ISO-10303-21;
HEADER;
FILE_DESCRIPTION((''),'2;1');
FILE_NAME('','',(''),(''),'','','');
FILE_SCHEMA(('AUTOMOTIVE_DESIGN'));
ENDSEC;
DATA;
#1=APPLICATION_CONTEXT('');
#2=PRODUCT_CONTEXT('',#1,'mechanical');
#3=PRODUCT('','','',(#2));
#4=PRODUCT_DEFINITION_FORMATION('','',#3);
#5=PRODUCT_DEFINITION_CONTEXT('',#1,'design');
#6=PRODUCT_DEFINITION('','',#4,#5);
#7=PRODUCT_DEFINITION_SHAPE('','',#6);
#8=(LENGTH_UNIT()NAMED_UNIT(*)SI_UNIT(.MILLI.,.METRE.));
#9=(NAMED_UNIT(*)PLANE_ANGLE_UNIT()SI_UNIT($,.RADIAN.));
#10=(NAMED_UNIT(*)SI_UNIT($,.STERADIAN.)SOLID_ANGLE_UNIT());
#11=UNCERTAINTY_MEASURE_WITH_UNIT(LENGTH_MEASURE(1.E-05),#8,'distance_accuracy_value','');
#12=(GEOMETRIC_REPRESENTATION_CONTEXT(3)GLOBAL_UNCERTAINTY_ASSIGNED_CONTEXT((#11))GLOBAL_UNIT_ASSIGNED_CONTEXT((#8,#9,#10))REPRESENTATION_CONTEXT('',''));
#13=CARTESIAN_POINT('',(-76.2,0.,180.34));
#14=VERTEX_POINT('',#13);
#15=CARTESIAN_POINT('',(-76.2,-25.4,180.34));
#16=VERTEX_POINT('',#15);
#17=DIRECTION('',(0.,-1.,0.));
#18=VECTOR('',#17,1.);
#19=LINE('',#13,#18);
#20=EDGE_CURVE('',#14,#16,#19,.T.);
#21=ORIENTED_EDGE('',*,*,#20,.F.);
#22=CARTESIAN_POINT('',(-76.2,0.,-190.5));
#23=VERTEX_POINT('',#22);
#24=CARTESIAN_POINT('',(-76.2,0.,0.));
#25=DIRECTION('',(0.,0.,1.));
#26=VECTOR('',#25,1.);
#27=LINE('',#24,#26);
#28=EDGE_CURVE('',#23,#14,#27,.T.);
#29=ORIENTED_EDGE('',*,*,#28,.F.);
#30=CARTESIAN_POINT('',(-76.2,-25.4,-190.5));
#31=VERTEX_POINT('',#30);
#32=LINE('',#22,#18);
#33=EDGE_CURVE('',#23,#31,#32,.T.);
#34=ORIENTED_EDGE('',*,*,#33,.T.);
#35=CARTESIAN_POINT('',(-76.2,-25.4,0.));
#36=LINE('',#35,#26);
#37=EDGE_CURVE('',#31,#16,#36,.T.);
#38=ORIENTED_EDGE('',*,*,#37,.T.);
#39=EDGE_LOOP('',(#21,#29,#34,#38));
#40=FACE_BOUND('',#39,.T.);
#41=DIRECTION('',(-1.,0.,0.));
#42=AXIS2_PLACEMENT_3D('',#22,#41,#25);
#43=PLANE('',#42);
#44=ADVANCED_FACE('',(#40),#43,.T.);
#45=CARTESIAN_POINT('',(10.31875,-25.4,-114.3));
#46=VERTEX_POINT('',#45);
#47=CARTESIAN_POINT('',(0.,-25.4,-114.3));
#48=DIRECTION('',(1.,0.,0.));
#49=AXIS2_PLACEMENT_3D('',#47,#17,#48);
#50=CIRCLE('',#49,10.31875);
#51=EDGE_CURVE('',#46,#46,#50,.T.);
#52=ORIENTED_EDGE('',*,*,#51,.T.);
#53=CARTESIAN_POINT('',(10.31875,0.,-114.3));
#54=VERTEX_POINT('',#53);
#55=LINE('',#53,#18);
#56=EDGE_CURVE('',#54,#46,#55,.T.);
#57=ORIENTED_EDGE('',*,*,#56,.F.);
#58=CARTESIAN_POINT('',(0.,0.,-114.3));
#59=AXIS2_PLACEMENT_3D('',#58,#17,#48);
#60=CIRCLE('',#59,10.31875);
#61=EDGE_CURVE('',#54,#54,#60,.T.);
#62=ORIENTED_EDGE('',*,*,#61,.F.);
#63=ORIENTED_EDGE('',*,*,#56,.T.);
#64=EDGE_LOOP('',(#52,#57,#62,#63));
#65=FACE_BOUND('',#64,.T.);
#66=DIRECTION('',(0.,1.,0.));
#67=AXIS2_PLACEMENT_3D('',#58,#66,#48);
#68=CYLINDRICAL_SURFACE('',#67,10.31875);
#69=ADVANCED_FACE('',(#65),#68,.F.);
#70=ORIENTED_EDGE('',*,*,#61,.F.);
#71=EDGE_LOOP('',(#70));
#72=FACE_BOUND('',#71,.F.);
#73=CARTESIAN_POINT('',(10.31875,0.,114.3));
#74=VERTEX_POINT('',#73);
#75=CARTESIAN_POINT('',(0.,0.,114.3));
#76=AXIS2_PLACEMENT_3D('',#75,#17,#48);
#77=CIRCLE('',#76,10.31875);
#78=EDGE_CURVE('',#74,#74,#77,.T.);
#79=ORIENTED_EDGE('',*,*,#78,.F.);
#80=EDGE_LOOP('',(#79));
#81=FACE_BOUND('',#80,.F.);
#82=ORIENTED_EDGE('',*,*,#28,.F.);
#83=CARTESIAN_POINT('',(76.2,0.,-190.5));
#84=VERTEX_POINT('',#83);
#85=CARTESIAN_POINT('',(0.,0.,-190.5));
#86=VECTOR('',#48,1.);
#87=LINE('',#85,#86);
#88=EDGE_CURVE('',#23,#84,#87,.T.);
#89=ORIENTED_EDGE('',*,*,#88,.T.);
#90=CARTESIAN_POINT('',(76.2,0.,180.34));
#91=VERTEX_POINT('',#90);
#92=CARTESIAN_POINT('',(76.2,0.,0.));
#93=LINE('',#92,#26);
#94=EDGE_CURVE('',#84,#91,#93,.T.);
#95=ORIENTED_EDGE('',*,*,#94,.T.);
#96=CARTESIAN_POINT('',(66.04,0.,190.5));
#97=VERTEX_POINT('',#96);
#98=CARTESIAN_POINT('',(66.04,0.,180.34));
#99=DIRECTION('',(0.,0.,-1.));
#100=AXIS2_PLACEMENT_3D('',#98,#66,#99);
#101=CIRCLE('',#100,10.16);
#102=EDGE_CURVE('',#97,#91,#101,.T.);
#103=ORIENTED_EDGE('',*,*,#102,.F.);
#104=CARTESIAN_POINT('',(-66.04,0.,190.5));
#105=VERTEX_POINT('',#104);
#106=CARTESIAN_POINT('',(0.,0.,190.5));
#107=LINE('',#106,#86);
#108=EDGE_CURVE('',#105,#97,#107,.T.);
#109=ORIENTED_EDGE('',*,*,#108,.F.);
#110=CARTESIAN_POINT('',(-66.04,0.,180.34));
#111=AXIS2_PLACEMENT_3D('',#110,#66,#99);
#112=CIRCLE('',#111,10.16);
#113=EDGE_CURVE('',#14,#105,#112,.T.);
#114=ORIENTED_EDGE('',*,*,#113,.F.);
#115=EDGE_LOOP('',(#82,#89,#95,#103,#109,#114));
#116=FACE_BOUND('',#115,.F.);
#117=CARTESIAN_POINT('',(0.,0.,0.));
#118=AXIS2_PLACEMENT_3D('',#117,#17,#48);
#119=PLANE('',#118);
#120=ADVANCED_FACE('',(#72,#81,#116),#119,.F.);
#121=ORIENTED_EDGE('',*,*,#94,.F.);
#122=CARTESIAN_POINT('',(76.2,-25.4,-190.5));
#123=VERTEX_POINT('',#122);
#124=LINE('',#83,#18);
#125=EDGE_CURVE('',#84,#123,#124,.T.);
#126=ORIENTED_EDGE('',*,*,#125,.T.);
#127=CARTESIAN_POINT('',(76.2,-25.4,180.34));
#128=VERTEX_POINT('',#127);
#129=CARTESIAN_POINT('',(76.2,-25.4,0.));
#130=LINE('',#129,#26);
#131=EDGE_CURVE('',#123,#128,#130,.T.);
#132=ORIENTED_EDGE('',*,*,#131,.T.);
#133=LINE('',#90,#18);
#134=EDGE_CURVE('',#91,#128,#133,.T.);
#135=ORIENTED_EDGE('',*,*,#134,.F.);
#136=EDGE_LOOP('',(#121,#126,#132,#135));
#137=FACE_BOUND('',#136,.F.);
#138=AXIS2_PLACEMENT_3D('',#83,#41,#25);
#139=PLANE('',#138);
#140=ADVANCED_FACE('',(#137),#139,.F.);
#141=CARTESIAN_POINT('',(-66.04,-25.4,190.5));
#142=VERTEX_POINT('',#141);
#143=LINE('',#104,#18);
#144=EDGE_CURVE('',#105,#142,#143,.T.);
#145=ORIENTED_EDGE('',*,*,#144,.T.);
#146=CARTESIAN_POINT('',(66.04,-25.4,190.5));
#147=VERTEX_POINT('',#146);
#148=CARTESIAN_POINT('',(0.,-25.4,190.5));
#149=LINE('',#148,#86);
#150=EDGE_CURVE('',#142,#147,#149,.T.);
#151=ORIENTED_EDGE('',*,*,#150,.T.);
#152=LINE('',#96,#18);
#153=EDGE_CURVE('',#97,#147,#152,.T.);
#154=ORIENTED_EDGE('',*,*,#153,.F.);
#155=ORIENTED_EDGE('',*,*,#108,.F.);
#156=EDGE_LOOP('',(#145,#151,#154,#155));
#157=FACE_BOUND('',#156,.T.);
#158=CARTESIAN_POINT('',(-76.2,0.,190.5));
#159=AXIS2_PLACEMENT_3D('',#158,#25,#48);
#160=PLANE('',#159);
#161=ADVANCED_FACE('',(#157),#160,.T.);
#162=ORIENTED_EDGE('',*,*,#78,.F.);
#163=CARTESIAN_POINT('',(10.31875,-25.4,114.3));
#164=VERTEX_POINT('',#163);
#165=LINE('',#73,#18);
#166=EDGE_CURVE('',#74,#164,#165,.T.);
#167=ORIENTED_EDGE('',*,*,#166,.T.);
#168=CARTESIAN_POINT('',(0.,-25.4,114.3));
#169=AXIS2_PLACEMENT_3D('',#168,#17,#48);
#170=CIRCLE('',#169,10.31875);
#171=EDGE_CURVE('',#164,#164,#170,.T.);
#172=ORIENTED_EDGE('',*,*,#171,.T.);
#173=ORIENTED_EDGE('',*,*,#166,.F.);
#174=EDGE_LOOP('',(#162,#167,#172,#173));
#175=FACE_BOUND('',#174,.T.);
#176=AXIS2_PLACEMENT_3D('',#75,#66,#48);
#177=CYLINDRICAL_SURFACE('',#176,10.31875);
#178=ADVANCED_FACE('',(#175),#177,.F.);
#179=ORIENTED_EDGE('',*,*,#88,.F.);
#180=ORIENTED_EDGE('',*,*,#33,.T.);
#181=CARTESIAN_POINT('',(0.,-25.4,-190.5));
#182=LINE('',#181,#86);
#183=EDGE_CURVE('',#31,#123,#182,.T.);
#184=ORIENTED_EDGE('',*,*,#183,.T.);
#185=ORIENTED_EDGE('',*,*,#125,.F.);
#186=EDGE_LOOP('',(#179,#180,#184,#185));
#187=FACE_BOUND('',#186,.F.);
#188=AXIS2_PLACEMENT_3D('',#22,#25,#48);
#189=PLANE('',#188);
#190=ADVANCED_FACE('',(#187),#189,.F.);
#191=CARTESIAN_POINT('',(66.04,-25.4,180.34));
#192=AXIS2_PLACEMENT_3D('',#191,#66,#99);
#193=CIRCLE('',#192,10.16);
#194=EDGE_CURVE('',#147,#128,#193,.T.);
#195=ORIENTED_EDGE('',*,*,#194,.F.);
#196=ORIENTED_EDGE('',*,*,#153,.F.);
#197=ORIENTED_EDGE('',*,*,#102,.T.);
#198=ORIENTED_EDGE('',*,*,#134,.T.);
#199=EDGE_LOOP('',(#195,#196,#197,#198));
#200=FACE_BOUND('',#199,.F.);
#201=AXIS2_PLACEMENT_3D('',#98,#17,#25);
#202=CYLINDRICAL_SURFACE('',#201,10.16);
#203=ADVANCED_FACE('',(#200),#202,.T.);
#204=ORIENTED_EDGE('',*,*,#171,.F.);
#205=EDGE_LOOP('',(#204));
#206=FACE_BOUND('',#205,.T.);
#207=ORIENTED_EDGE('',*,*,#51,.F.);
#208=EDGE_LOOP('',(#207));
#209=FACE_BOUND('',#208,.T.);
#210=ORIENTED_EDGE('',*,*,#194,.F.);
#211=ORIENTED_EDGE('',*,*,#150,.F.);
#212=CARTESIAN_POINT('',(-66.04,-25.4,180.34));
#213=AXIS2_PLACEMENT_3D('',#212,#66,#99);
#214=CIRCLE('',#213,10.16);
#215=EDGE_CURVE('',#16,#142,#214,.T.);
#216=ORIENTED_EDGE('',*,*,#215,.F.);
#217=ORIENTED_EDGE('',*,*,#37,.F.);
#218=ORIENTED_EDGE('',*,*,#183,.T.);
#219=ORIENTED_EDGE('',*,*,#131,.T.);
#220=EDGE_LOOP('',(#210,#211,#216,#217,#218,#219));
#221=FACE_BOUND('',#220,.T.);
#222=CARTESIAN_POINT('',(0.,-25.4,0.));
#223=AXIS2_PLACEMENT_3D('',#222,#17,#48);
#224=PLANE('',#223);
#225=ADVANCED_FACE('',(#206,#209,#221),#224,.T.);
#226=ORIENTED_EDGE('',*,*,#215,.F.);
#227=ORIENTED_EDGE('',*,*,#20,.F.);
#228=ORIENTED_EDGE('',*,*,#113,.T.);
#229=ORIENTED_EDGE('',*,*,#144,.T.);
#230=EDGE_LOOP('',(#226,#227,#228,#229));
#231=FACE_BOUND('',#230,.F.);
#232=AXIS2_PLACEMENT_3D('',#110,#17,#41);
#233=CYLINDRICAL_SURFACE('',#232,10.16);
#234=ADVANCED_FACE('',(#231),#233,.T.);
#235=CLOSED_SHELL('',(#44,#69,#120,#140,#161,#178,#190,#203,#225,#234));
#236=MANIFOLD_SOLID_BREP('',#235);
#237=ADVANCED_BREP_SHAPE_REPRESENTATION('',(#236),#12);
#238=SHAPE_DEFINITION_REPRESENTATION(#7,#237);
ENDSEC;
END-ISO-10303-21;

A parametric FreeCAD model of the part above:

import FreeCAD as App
import Part
import Sketcher
from FreeCAD import Vector
Q = App.Units.Quantity


def edges_at(feature, points):
    """Names of the edges that pass closest to the given points."""
    edges = feature.Shape.Edges
    near = lambda p: min(range(len(edges)), key=lambda i: edges[i].distToShape(Part.Vertex(*p))[0])
    return sorted({f"Edge{near(p) + 1}" for p in points})


def add_polygon(sketch, points):
    """Adds a closed chain of lines whose ends are joined by coincident constraints."""
    first, n = sketch.GeometryCount, len(points)
    for a, b in zip(points, points[1:] + points[:1]):
        sketch.addGeometry(Part.LineSegment(App.Vector(*a, 0), App.Vector(*b, 0)), False)
    for i in range(n):
        sketch.addConstraint(Sketcher.Constraint("Coincident", first + i, 2, first + (i + 1) % n, 1))

doc = App.newDocument("Part")
body = doc.addObject("PartDesign::Body", "Body")

# Sketch on XZ plane
sketch1 = doc.addObject("Sketcher::SketchObject", "Sketch")
body.addObject(sketch1)
sketch1.AttachmentSupport = (doc.XZ_Plane, [""])
sketch1.MapMode = "FlatFace"
add_polygon(sketch1, [(-76.2, 190.5), (-76.2, -190.5), (76.2, -190.5), (76.2, 190.5)])  # lines 0-3
sketch1.addGeometry(Part.Circle(Vector(0, -114.3, 0), Vector(0, 0, 1), 10.31875), False)  # 4
sketch1.addGeometry(Part.Circle(Vector(0, 114.3, 0), Vector(0, 0, 1), 10.31875), False)  # 5
sketch1.addConstraint([
    Sketcher.Constraint("Vertical", 0),
    Sketcher.Constraint("Horizontal", 1),
    Sketcher.Constraint("Vertical", 2),
    Sketcher.Constraint("Horizontal", 3),
    Sketcher.Constraint("Equal", 4, 5),
    Sketcher.Constraint("Symmetric", 4, 3, 5, 3, -1, 1),
    Sketcher.Constraint("Symmetric", 0, 2, 2, 2, -1, 1),
    Sketcher.Constraint("PointOnObject", 4, 3, -2),
    Sketcher.Constraint("DistanceX", 1, 1, 1, 2, Q("6 in")),
    Sketcher.Constraint("DistanceY", 0, 2, 0, 1, Q("15 in")),
    Sketcher.Constraint("Diameter", 4, Q("0.8125 in")),
    Sketcher.Constraint("DistanceY", 4, 3, 5, 3, Q("9 in")),
])
pad1 = doc.addObject("PartDesign::Pad", "Pad")
body.addObject(pad1)
pad1.Profile = sketch1
pad1.Length = Q("1 in")
doc.recompute()

fillet = doc.addObject("PartDesign::Fillet", "Fillet")
body.addObject(fillet)
fillet.Base = (pad1, edges_at(pad1, [(-76.2, -12.7, 190.5), (76.2, -12.7, 190.5)]))
fillet.Radius = Q("0.4 in")

doc.recompute()
